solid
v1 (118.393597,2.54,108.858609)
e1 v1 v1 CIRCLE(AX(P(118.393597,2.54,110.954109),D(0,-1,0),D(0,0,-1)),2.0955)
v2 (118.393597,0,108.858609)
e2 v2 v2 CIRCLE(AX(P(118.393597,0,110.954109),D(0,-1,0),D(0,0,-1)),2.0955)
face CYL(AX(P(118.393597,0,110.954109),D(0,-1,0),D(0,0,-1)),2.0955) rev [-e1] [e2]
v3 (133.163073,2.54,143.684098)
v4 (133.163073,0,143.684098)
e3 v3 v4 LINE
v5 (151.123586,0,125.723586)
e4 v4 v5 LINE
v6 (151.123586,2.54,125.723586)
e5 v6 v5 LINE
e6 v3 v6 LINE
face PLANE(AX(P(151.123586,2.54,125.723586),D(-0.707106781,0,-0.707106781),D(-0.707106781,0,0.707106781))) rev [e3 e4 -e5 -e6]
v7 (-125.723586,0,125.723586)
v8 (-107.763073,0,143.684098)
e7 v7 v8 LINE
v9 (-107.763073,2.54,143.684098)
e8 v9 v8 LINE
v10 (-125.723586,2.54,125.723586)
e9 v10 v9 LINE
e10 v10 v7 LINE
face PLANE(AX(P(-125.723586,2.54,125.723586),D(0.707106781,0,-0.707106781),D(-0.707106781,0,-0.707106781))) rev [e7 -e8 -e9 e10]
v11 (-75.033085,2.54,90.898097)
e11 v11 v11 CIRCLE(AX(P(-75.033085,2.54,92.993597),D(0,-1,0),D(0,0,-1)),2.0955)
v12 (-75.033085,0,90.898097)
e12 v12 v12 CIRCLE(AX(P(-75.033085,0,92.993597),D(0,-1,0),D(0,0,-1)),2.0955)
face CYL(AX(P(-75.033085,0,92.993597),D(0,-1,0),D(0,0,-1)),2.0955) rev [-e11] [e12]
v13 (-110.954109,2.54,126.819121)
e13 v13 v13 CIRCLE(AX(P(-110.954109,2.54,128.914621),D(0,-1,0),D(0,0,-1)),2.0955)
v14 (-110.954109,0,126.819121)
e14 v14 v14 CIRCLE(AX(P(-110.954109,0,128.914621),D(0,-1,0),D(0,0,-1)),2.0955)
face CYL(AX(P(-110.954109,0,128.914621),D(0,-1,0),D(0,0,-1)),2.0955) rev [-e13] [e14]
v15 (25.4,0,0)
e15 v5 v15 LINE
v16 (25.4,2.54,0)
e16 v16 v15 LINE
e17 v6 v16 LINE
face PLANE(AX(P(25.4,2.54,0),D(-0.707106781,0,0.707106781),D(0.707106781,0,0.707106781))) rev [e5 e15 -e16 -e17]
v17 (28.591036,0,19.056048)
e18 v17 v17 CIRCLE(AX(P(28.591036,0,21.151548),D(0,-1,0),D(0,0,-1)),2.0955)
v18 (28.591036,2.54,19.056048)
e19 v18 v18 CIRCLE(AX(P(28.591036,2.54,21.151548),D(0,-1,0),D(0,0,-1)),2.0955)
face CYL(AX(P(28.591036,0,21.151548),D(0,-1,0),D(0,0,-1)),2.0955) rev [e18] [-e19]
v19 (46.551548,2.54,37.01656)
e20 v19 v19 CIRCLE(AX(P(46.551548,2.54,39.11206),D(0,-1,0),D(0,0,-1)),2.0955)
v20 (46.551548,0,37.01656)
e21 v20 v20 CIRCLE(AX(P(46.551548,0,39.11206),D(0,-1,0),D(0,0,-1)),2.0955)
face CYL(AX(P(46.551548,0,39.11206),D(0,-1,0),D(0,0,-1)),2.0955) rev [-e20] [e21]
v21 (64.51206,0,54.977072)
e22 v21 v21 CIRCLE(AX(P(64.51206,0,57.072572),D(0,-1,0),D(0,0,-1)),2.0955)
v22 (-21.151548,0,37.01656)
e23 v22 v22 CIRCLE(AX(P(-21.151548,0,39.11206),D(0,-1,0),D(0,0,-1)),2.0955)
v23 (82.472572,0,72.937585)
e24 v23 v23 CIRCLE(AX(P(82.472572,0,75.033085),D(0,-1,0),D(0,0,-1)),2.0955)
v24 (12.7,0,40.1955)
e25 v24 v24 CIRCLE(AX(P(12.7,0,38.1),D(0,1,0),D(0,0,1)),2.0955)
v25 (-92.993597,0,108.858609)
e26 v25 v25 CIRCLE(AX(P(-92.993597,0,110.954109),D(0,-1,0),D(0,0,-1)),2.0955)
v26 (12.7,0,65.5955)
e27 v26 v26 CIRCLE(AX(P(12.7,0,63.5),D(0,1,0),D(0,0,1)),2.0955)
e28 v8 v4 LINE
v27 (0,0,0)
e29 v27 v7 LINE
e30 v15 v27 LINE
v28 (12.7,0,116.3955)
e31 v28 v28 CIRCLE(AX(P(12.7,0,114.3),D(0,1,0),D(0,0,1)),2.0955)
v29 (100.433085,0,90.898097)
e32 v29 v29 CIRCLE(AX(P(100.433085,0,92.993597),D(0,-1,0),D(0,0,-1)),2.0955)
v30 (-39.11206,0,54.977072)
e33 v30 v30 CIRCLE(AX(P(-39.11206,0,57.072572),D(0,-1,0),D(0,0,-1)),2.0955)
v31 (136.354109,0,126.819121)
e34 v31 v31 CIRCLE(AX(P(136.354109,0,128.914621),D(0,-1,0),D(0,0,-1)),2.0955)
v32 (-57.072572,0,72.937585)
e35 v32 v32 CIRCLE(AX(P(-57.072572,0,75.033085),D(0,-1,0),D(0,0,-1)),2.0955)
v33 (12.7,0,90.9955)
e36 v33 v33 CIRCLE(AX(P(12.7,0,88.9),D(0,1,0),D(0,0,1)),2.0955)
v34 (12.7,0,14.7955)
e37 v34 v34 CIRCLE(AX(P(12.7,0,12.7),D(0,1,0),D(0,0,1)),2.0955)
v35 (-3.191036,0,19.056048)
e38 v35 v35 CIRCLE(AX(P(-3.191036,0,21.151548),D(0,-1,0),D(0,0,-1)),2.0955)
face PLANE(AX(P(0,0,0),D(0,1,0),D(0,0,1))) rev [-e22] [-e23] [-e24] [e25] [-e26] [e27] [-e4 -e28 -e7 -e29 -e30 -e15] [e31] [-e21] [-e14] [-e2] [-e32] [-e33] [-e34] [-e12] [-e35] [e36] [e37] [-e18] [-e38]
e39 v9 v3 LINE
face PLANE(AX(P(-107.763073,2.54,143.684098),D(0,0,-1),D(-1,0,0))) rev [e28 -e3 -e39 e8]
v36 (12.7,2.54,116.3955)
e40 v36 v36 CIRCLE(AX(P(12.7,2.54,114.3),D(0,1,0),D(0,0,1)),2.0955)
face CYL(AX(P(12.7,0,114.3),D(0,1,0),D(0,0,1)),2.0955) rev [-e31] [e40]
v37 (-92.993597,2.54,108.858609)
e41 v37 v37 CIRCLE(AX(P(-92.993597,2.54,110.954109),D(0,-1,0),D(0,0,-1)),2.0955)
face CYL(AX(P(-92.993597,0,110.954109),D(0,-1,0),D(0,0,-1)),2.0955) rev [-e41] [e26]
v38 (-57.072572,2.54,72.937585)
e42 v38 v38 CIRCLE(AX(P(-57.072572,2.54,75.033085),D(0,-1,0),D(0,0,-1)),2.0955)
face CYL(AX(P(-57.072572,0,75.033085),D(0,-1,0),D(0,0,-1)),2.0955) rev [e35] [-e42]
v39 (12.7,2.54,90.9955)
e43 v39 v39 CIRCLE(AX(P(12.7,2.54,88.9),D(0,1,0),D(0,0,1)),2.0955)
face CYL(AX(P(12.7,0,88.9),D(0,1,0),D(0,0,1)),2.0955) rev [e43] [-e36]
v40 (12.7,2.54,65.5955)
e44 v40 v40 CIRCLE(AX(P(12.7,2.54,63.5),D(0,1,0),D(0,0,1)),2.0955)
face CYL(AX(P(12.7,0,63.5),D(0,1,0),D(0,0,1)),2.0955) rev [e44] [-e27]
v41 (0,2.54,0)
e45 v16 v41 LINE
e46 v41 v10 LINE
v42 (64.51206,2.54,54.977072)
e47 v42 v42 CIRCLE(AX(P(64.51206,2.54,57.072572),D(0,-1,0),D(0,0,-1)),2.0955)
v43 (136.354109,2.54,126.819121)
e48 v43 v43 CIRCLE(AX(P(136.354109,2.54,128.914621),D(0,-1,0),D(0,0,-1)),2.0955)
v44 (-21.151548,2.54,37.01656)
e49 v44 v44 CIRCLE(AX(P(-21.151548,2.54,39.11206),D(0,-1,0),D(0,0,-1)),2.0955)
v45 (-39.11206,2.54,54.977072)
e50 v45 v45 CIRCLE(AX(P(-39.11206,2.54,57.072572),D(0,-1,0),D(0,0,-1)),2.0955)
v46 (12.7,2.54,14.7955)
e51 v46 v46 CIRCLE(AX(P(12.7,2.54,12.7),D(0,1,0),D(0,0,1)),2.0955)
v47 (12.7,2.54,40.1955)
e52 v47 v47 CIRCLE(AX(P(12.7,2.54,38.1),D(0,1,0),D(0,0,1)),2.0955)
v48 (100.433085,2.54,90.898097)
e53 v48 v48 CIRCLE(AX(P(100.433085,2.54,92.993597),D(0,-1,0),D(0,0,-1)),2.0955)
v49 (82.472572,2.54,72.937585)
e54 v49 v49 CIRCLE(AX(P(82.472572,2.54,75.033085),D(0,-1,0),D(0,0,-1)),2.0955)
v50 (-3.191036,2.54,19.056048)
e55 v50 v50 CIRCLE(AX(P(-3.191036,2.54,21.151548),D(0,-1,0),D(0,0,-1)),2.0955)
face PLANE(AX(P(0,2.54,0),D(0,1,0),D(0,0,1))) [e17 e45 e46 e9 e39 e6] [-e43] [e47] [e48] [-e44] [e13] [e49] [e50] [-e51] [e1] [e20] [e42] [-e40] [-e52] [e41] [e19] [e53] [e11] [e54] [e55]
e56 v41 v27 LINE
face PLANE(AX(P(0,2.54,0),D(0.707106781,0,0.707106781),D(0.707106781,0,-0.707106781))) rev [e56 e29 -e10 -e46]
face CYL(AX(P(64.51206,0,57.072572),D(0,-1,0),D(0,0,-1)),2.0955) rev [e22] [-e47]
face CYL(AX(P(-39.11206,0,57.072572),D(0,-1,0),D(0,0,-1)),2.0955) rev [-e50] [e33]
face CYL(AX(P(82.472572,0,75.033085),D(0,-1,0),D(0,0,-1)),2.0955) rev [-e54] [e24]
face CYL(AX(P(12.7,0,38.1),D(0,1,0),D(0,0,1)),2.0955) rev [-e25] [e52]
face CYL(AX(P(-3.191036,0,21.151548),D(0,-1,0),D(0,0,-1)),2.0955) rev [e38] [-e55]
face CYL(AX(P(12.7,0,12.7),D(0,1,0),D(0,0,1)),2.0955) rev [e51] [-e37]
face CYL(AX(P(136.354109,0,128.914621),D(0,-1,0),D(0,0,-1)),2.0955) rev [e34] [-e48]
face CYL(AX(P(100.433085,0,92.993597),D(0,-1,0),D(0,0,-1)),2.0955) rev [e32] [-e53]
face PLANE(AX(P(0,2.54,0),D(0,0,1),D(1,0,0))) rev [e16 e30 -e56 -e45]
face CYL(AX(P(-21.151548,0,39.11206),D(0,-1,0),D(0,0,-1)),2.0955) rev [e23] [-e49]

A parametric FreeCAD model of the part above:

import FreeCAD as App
import Part
import Sketcher
from FreeCAD import Vector
Q = App.Units.Quantity

doc = App.newDocument("Part")
body = doc.addObject("PartDesign::Body", "Body")

# Sketch on XZ plane
sketch1 = body.newObject("Sketcher::SketchObject", "Sketch")
sketch1.AttachmentSupport = (doc.getObject("XZ_Plane"), [""])
sketch1.MapMode = "FlatFace"
sketch1.addGeometry(Part.LineSegment(Vector(25.4, 0, 0), Vector(0, 0, 0)), False)
sketch1.addGeometry(Part.LineSegment(Vector(0, 0, 0), Vector(-125.723586, 125.723586, 0)), False)
sketch1.addGeometry(Part.LineSegment(Vector(-125.723586, 125.723586, 0), Vector(-107.763073, 143.684098, 0)), False)
sketch1.addGeometry(Part.LineSegment(Vector(-107.763073, 143.684098, 0), Vector(133.163073, 143.684098, 0)), False)
sketch1.addGeometry(Part.LineSegment(Vector(133.163073, 143.684098, 0), Vector(151.123586, 125.723586, 0)), False)
sketch1.addGeometry(Part.LineSegment(Vector(151.123586, 125.723586, 0), Vector(25.4, 0, 0)), False)
sketch1.addConstraint(Sketcher.Constraint("Coincident", 0, 2, 1, 1))
sketch1.addConstraint(Sketcher.Constraint("Coincident", 1, 2, 2, 1))
sketch1.addConstraint(Sketcher.Constraint("Coincident", 2, 2, 3, 1))
sketch1.addConstraint(Sketcher.Constraint("Coincident", 3, 2, 4, 1))
sketch1.addConstraint(Sketcher.Constraint("Coincident", 4, 2, 5, 1))
sketch1.addConstraint(Sketcher.Constraint("Coincident", 5, 2, 0, 1))
sketch1.addConstraint(Sketcher.Constraint("Horizontal", 0))
sketch1.addConstraint(Sketcher.Constraint("Horizontal", 3))
sketch1.addConstraint(Sketcher.Constraint("Coincident", 0, 2, -1, 1))
sketch1.addConstraint(Sketcher.Constraint("Perpendicular", 1, 2))
sketch1.addConstraint(Sketcher.Constraint("Perpendicular", 2, 4))
sketch1.addConstraint(Sketcher.Constraint("Perpendicular", 4, 5))
sketch1.addConstraint(Sketcher.Constraint("Horizontal", 1, 2, 4, 2))
sketch1.addConstraint(Sketcher.Constraint("Equal", 2, 4))
sketch1.addConstraint(Sketcher.Constraint("DistanceX", 0, 2, 0, 1, Q("1 in")))
sketch1.addConstraint(Sketcher.Constraint("Distance", 1, Q("7 in")))
sketch1.addConstraint(Sketcher.Constraint("Distance", 2, Q("1 in")))
pad1 = body.newObject("PartDesign::Pad", "Pad")
pad1.Profile = sketch1
pad1.Length = Q("0.1 in")
pad1.Reversed = True

# Sketch on XZ plane
sketch2 = body.newObject("Sketcher::SketchObject", "Sketch001")
sketch2.AttachmentSupport = (doc.getObject("XZ_Plane"), [""])
sketch2.MapMode = "FlatFace"
sketch2.AttachmentOffset = App.Placement(Vector(0, 0, -0.1 * 25.4), App.Rotation())
sketch2.addGeometry(Part.Circle(Vector(12.7, 12.7, 0), Vector(0, 0, 1), 2.0955), False)
sketch2.addGeometry(Part.Circle(Vector(12.7, 38.1, 0), Vector(0, 0, 1), 2.0955), False)
sketch2.addGeometry(Part.Circle(Vector(12.7, 63.5, 0), Vector(0, 0, 1), 2.0955), False)
sketch2.addGeometry(Part.Circle(Vector(12.7, 88.9, 0), Vector(0, 0, 1), 2.0955), False)
sketch2.addGeometry(Part.Circle(Vector(12.7, 114.3, 0), Vector(0, 0, 1), 2.0955), False)
sketch2.addConstraint(Sketcher.Constraint("Equal", 0, 1))
sketch2.addConstraint(Sketcher.Constraint("Equal", 1, 2))
sketch2.addConstraint(Sketcher.Constraint("Equal", 2, 3))
sketch2.addConstraint(Sketcher.Constraint("Equal", 3, 4))
sketch2.addConstraint(Sketcher.Constraint("Vertical", 0, 3, 1, 3))
sketch2.addConstraint(Sketcher.Constraint("Vertical", 1, 3, 2, 3))
sketch2.addConstraint(Sketcher.Constraint("Vertical", 2, 3, 3, 3))
sketch2.addConstraint(Sketcher.Constraint("Vertical", 3, 3, 4, 3))
sketch2.addConstraint(Sketcher.Constraint("Diameter", 0, Q("0.165 in")))
sketch2.addConstraint(Sketcher.Constraint("DistanceY", 0, 3, 1, 3, Q("1 in")))
sketch2.addConstraint(Sketcher.Constraint("DistanceY", 1, 3, 2, 3, Q("1 in")))
sketch2.addConstraint(Sketcher.Constraint("DistanceY", 2, 3, 3, 3, Q("1 in")))
sketch2.addConstraint(Sketcher.Constraint("DistanceY", 3, 3, 4, 3, Q("1 in")))
sketch2.addConstraint(Sketcher.Constraint("DistanceX", -1, 1, 0, 3, Q("0.5 in")))
sketch2.addConstraint(Sketcher.Constraint("DistanceY", -1, 1, 0, 3, Q("0.5 in")))
pocket1 = body.newObject("PartDesign::Pocket", "Pocket")
pocket1.Profile = sketch2
pocket1.Type = "ThroughAll"
pocket1.Midplane = True

# Sketch on XZ plane
sketch3 = body.newObject("Sketcher::SketchObject", "Sketch002")
sketch3.AttachmentSupport = (doc.getObject("XZ_Plane"), [""])
sketch3.MapMode = "FlatFace"
sketch3.addGeometry(Part.Circle(Vector(-21.151548, 39.11206, 0), Vector(0, 0, 1), 2.0955), False)
sketch3.addGeometry(Part.Circle(Vector(-39.11206, 57.072572, 0), Vector(0, 0, 1), 2.0955), False)
sketch3.addGeometry(Part.Circle(Vector(-57.072572, 75.033085, 0), Vector(0, 0, 1), 2.0955), False)
sketch3.addGeometry(Part.Circle(Vector(-75.033085, 92.993597, 0), Vector(0, 0, 1), 2.0955), False)
sketch3.addGeometry(Part.Circle(Vector(-92.993597, 110.954109, 0), Vector(0, 0, 1), 2.0955), False)
sketch3.addGeometry(Part.Circle(Vector(-110.954109, 128.914621, 0), Vector(0, 0, 1), 2.0955), False)
sketch3.addGeometry(Part.Circle(Vector(28.591036, 21.151548, 0), Vector(0, 0, 1), 2.0955), False)
sketch3.addGeometry(Part.Circle(Vector(46.551548, 39.11206, 0), Vector(0, 0, 1), 2.0955), False)
sketch3.addGeometry(Part.Circle(Vector(64.51206, 57.072572, 0), Vector(0, 0, 1), 2.0955), False)
sketch3.addGeometry(Part.Circle(Vector(82.472572, 75.033085, 0), Vector(0, 0, 1), 2.0955), False)
sketch3.addGeometry(Part.Circle(Vector(100.433085, 92.993597, 0), Vector(0, 0, 1), 2.0955), False)
sketch3.addGeometry(Part.Circle(Vector(118.393597, 110.954109, 0), Vector(0, 0, 1), 2.0955), False)
sketch3.addGeometry(Part.Circle(Vector(136.354109, 128.914621, 0), Vector(0, 0, 1), 2.0955), False)
sketch3.addGeometry(Part.Circle(Vector(-3.191036, 21.151548, 0), Vector(0, 0, 1), 2.0955), False)
sketch3.addConstraint(Sketcher.Constraint("Equal", 0, 1))
sketch3.addConstraint(Sketcher.Constraint("Equal", 1, 2))
sketch3.addConstraint(Sketcher.Constraint("Equal", 2, 3))
sketch3.addConstraint(Sketcher.Constraint("Equal", 3, 4))
sketch3.addConstraint(Sketcher.Constraint("Equal", 4, 5))
sketch3.addConstraint(Sketcher.Constraint("Equal", 5, 6))
sketch3.addConstraint(Sketcher.Constraint("Equal", 6, 7))
sketch3.addConstraint(Sketcher.Constraint("Equal", 7, 8))
sketch3.addConstraint(Sketcher.Constraint("Equal", 8, 9))
sketch3.addConstraint(Sketcher.Constraint("Equal", 9, 10))
sketch3.addConstraint(Sketcher.Constraint("Equal", 10, 11))
sketch3.addConstraint(Sketcher.Constraint("Equal", 11, 12))
sketch3.addConstraint(Sketcher.Constraint("Equal", 12, 13))
sketch3.addConstraint(Sketcher.Constraint("Horizontal", 0, 3, 7, 3))
sketch3.addConstraint(Sketcher.Constraint("Horizontal", 1, 3, 8, 3))
sketch3.addConstraint(Sketcher.Constraint("Horizontal", 2, 3, 9, 3))
sketch3.addConstraint(Sketcher.Constraint("Horizontal", 3, 3, 10, 3))
sketch3.addConstraint(Sketcher.Constraint("Horizontal", 4, 3, 11, 3))
sketch3.addConstraint(Sketcher.Constraint("Horizontal", 5, 3, 12, 3))
sketch3.addConstraint(Sketcher.Constraint("Horizontal", 6, 3, 13, 3))
sketch3.addConstraint(Sketcher.Constraint("Diameter", 0, Q("0.165 in")))
sketch3.addConstraint(Sketcher.Constraint("DistanceX", 0, 3, -1, 1, Q("21.151548 mm")))
sketch3.addConstraint(Sketcher.Constraint("DistanceY", -1, 1, 0, 3, Q("39.11206 mm")))
sketch3.addConstraint(Sketcher.Constraint("DistanceX", 1, 3, -1, 1, Q("39.11206 mm")))
sketch3.addConstraint(Sketcher.Constraint("DistanceY", -1, 1, 4, 3, Q("110.954109 mm")))
sketch3.addConstraint(Sketcher.Constraint("DistanceX", 5, 3, -1, 1, Q("110.954109 mm")))
sketch3.addConstraint(Sketcher.Constraint("DistanceY", -1, 1, 5, 3, Q("128.914621 mm")))
sketch3.addConstraint(Sketcher.Constraint("DistanceY", -1, 1, 6, 3, Q("21.151548 mm")))
sketch3.addConstraint(Sketcher.Constraint("DistanceX", -1, 1, 7, 3, Q("46.551548 mm")))
sketch3.addConstraint(Sketcher.Constraint("DistanceX", -1, 1, 8, 3, Q("64.51206 mm")))
sketch3.addConstraint(Sketcher.Constraint("DistanceX", -1, 1, 12, 3, Q("136.354109 mm")))
sketch3.addConstraint(Sketcher.Constraint("DistanceX", 4, 3, 0, 3, Q("71.842049 mm")))
sketch3.addConstraint(Sketcher.Constraint("DistanceY", 1, 3, 5, 3, Q("71.842049 mm")))
sketch3.addConstraint(Sketcher.Constraint("DistanceX", 2, 3, 6, 3, Q("85.663608 mm")))
sketch3.addConstraint(Sketcher.Constraint("DistanceX", 3, 3, 6, 3, Q("103.62412 mm")))
sketch3.addConstraint(Sketcher.Constraint("DistanceY", 6, 3, 3, 3, Q("71.842049 mm")))
sketch3.addConstraint(Sketcher.Constraint("DistanceX", 2, 3, 7, 3, Q("103.62412 mm")))
sketch3.addConstraint(Sketcher.Constraint("DistanceX", 0, 3, 9, 3, Q("103.62412 mm")))
sketch3.addConstraint(Sketcher.Constraint("DistanceX", 6, 3, 10, 3, Q("71.842049 mm")))
sketch3.addConstraint(Sketcher.Constraint("DistanceX", 7, 3, 11, 3, Q("71.842049 mm")))
sketch3.addConstraint(Sketcher.Constraint("DistanceX", 13, 3, 6, 3, Q("31.782072 mm")))
sketch3.addConstraint(Sketcher.Constraint("DistanceY", -1, 1, 2, 3, Q("75.033085 mm")))
doc.recompute()
hole = body.newObject("PartDesign::Hole", "Hole")
hole.Profile = sketch3
hole.ThreadType = "None"
hole.Diameter = Q("0.165 in")
hole.DepthType = "ThroughAll"

doc.recompute()
